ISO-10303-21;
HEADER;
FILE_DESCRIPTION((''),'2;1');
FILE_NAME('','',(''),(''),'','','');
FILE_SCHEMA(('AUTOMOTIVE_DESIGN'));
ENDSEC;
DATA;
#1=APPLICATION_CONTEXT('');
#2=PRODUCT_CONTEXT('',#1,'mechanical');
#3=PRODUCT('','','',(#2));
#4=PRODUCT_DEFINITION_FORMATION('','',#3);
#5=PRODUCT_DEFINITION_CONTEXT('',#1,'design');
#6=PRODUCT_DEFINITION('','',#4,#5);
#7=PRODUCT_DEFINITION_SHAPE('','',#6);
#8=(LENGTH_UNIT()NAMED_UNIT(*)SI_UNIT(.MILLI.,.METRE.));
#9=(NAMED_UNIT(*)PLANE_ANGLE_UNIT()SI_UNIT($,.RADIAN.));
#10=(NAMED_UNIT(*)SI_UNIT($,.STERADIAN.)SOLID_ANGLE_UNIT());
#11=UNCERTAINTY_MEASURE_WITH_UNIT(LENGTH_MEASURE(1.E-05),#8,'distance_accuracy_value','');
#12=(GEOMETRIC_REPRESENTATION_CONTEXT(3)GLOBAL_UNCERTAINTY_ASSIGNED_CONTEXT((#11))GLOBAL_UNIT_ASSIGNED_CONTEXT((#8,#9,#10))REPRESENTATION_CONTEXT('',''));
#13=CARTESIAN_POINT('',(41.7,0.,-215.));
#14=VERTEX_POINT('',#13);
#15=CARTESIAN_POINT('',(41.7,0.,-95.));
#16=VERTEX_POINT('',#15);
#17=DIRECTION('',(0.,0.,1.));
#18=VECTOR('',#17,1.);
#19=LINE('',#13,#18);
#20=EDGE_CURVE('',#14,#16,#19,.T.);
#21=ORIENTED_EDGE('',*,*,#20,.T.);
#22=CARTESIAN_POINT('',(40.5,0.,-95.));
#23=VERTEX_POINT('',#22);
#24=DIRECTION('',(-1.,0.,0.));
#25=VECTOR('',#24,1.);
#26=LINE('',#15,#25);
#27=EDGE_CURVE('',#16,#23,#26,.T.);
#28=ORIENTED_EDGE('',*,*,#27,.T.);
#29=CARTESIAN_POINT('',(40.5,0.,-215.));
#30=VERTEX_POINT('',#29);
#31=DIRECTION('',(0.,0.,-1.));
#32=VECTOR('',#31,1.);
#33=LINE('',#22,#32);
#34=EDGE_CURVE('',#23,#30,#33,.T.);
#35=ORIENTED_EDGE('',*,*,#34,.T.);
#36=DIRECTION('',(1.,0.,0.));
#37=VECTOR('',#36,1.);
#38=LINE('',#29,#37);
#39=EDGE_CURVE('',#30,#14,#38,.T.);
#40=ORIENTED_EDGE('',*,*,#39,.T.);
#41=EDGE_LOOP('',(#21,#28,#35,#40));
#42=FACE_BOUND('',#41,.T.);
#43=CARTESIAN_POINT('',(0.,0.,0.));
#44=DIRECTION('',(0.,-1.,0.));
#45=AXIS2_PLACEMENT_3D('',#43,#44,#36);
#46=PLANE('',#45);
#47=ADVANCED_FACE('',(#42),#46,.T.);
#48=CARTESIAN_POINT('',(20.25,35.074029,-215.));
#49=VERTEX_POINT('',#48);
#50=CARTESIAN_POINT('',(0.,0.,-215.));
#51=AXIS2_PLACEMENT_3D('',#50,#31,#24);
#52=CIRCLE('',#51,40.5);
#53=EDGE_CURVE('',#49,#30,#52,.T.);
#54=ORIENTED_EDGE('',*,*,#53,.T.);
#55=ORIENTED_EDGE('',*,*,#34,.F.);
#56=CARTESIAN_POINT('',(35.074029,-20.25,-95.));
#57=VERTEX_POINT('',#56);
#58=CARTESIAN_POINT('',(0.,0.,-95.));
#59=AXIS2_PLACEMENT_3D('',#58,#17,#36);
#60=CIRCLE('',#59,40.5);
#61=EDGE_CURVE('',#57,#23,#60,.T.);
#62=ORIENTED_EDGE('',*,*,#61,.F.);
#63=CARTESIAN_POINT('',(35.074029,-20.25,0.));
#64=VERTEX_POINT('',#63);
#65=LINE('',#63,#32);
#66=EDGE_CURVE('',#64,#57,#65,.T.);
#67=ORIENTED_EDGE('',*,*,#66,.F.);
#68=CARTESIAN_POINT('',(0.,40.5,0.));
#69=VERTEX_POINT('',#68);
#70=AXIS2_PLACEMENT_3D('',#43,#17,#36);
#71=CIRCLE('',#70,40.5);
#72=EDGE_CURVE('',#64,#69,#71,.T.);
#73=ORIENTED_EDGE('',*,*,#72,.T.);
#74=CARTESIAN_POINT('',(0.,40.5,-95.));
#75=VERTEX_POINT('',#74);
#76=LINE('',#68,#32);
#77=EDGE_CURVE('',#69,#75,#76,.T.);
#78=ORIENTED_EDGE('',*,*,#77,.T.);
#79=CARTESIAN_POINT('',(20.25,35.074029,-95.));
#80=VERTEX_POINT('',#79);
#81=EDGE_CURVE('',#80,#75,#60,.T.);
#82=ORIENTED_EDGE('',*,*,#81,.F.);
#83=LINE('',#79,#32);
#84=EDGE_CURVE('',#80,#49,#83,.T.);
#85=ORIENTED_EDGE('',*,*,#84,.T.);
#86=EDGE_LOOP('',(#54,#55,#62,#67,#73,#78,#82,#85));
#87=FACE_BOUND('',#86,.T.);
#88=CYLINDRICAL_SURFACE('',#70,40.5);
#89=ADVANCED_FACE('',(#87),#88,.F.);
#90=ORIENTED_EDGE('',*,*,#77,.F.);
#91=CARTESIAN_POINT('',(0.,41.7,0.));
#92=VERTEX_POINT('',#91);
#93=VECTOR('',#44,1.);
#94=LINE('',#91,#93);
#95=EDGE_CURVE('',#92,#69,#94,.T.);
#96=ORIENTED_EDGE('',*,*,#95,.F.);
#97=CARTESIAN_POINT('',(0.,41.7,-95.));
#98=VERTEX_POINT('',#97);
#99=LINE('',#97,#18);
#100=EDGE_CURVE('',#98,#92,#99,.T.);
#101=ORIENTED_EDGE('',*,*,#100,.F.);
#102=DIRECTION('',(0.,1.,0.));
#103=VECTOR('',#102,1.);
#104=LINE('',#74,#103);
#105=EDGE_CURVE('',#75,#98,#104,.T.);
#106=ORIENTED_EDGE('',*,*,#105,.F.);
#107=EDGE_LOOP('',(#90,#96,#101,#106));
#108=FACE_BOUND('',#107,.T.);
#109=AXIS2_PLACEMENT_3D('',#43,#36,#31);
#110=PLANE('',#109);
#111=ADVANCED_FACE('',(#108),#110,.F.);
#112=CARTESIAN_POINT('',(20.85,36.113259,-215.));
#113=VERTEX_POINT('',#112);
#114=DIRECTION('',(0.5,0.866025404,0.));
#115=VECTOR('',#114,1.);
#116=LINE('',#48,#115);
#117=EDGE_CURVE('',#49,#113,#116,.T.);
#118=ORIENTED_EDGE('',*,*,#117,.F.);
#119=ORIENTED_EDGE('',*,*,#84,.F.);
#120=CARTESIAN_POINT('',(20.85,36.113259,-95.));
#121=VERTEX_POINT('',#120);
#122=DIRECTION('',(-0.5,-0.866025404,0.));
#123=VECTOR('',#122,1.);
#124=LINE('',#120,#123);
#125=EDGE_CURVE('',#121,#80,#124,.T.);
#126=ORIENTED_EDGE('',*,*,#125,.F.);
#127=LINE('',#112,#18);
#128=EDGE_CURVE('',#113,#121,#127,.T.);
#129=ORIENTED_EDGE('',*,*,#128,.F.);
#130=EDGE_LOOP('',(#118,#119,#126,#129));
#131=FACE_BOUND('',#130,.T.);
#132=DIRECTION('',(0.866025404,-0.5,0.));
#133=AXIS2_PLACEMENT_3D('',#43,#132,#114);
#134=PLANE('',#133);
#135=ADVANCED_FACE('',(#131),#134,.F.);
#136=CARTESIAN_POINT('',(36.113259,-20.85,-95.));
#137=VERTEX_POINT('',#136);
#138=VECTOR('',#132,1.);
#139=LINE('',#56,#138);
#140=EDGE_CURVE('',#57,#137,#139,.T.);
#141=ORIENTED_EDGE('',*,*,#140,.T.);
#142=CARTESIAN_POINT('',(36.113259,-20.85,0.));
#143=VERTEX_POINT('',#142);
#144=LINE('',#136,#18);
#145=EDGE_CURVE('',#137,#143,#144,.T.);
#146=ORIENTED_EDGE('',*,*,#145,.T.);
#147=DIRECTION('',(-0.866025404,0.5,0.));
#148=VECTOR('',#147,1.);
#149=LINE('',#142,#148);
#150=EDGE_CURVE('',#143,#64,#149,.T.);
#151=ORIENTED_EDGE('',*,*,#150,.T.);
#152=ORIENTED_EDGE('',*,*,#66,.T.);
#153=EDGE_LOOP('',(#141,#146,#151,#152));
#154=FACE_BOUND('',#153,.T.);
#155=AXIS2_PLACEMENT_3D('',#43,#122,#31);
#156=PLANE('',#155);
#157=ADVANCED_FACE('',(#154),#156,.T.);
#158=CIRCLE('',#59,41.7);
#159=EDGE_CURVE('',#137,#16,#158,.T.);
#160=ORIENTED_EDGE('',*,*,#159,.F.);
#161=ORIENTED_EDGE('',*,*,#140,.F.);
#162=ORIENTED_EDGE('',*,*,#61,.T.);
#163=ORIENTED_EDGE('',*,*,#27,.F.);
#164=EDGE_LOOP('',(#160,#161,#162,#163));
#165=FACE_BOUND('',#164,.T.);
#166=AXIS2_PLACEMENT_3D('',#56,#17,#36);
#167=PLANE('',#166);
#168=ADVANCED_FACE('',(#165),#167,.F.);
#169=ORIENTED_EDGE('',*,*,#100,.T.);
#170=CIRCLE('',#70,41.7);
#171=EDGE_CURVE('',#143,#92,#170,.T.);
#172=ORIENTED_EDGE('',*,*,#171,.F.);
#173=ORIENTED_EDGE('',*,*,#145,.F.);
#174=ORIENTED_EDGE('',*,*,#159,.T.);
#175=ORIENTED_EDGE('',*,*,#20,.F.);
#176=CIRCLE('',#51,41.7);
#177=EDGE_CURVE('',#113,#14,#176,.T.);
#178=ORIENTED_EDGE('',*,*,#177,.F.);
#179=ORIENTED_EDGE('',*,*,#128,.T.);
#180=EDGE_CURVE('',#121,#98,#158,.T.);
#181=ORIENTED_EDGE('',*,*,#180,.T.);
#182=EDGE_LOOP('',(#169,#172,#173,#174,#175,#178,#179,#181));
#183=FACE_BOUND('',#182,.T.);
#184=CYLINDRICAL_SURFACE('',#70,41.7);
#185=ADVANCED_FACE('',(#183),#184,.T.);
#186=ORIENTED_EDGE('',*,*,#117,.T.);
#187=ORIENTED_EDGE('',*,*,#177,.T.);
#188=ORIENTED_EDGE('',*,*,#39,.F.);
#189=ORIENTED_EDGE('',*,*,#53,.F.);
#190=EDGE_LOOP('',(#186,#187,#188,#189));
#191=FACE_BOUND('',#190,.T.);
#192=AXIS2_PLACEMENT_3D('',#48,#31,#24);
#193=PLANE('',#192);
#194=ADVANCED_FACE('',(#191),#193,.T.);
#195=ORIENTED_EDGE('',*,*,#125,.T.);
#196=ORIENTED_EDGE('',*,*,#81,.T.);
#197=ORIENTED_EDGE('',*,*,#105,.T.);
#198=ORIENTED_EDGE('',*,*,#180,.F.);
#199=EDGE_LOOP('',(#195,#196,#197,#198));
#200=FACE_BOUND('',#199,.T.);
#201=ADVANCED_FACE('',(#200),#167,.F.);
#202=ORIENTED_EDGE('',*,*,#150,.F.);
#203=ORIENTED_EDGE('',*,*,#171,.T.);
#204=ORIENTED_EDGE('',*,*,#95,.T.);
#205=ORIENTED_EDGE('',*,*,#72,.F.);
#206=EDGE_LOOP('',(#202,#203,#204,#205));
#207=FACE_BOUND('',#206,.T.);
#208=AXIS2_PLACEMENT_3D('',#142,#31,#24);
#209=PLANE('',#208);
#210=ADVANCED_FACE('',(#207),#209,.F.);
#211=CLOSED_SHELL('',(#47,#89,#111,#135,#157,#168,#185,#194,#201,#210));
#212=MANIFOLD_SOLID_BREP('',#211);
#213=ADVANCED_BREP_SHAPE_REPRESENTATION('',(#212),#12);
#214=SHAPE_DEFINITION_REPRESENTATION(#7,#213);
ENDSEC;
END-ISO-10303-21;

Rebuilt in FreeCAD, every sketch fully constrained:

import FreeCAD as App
import Part
import Sketcher
Q = App.Units.Quantity

doc = App.newDocument("Part")
body = doc.addObject("PartDesign::Body", "Body")

# Sketch on YZ plane
sketch1 = body.newObject("Sketcher::SketchObject", "Sketch")
sketch1.AttachmentSupport = (doc.getObject("YZ_Plane"), [""])
sketch1.MapMode = "FlatFace"
sketch1.addGeometry([
    Part.LineSegment(App.Vector(41.7, 0, 0), App.Vector(40.5, 0, 0)),
    Part.LineSegment(App.Vector(40.5, 0, 0), App.Vector(40.5, -95, 0)),
    Part.LineSegment(App.Vector(40.5, -95, 0), App.Vector(41.7, -95, 0)),
    Part.LineSegment(App.Vector(41.7, -95, 0), App.Vector(41.7, 0, 0)),
], False)
sketch1.addConstraint([
    Sketcher.Constraint("Coincident", 0, 2, 1, 1),
    Sketcher.Constraint("Coincident", 1, 2, 2, 1),
    Sketcher.Constraint("Coincident", 2, 2, 3, 1),
    Sketcher.Constraint("Coincident", 3, 2, 0, 1),
    Sketcher.Constraint("Horizontal", 0),
    Sketcher.Constraint("Vertical", 1),
    Sketcher.Constraint("Horizontal", 2),
    Sketcher.Constraint("Vertical", 3),
    Sketcher.Constraint("PointOnObject", 0, 2, -1),
    Sketcher.Constraint("DistanceY", 1, 2, 1, 1, Q("95 mm")),
    Sketcher.Constraint("DistanceX", 0, 2, 0, 1, Q("1.2 mm")),
    Sketcher.Constraint("DistanceX", -1, 1, 0, 2, Q("40.5 mm")),
])
revolution = body.newObject("PartDesign::Revolution", "Revolution")
revolution.Profile = sketch1
revolution.ReferenceAxis = (sketch1, ["V_Axis"])
revolution.Angle = 120
revolution.Reversed = True

# Sketch on an angled plane
sketch2 = body.newObject("Sketcher::SketchObject", "Sketch001")
sketch2.Placement = App.Placement(App.Vector(0, 0, 0), App.Rotation(App.Vector(0, 0, 1), App.Vector(-0.866025404, -0.5, 0), App.Vector(0.5, -0.866025404, 0), "ZXY"))
sketch2.addGeometry([
    Part.LineSegment(App.Vector(-95, -40.5, 0), App.Vector(-215, -40.5, 0)),
    Part.LineSegment(App.Vector(-215, -40.5, 0), App.Vector(-215, -41.7, 0)),
    Part.LineSegment(App.Vector(-215, -41.7, 0), App.Vector(-95, -41.7, 0)),
    Part.LineSegment(App.Vector(-95, -41.7, 0), App.Vector(-95, -40.5, 0)),
], False)
sketch2.addConstraint([
    Sketcher.Constraint("Coincident", 0, 2, 1, 1),
    Sketcher.Constraint("Coincident", 1, 2, 2, 1),
    Sketcher.Constraint("Coincident", 2, 2, 3, 1),
    Sketcher.Constraint("Coincident", 3, 2, 0, 1),
    Sketcher.Constraint("Horizontal", 0),
    Sketcher.Constraint("Vertical", 1),
    Sketcher.Constraint("Horizontal", 2),
    Sketcher.Constraint("Vertical", 3),
    Sketcher.Constraint("DistanceX", 0, 2, 0, 1, Q("120 mm")),
    Sketcher.Constraint("DistanceY", 1, 2, 1, 1, Q("1.2 mm")),
    Sketcher.Constraint("DistanceX", 0, 2, -1, 1, Q("215 mm")),
    Sketcher.Constraint("DistanceY", 0, 2, -1, 1, Q("40.5 mm")),
])
revolution2 = body.newObject("PartDesign::Revolution", "Revolution001")
revolution2.Profile = sketch2
revolution2.ReferenceAxis = (sketch2, ["H_Axis"])
revolution2.Angle = 30

# Sketch on an angled plane
sketch3 = body.newObject("Sketcher::SketchObject", "Sketch002")
sketch3.Placement = App.Placement(App.Vector(0, 0, 0), App.Rotation(App.Vector(0, 0, 1), App.Vector(-0.866025404, -0.5, 0), App.Vector(0.5, -0.866025404, 0), "ZXY"))
sketch3.addGeometry([
    Part.LineSegment(App.Vector(-95, -40.5, 0), App.Vector(-215, -40.5, 0)),
    Part.LineSegment(App.Vector(-215, -40.5, 0), App.Vector(-215, -41.7, 0)),
    Part.LineSegment(App.Vector(-215, -41.7, 0), App.Vector(-95, -41.7, 0)),
    Part.LineSegment(App.Vector(-95, -41.7, 0), App.Vector(-95, -40.5, 0)),
], False)
sketch3.addConstraint([
    Sketcher.Constraint("Coincident", 0, 2, 1, 1),
    Sketcher.Constraint("Coincident", 1, 2, 2, 1),
    Sketcher.Constraint("Coincident", 2, 2, 3, 1),
    Sketcher.Constraint("Coincident", 3, 2, 0, 1),
    Sketcher.Constraint("Horizontal", 0),
    Sketcher.Constraint("Vertical", 1),
    Sketcher.Constraint("Horizontal", 2),
    Sketcher.Constraint("Vertical", 3),
    Sketcher.Constraint("DistanceX", 0, 2, 0, 1, Q("120 mm")),
    Sketcher.Constraint("DistanceY", 1, 2, 1, 1, Q("1.2 mm")),
    Sketcher.Constraint("DistanceX", 0, 2, -1, 1, Q("215 mm")),
    Sketcher.Constraint("DistanceY", 0, 2, -1, 1, Q("40.5 mm")),
])
revolution3 = body.newObject("PartDesign::Revolution", "Revolution002")
revolution3.Profile = sketch3
revolution3.ReferenceAxis = (sketch3, ["H_Axis"])
revolution3.Angle = 30
revolution3.Reversed = True

doc.recompute()
